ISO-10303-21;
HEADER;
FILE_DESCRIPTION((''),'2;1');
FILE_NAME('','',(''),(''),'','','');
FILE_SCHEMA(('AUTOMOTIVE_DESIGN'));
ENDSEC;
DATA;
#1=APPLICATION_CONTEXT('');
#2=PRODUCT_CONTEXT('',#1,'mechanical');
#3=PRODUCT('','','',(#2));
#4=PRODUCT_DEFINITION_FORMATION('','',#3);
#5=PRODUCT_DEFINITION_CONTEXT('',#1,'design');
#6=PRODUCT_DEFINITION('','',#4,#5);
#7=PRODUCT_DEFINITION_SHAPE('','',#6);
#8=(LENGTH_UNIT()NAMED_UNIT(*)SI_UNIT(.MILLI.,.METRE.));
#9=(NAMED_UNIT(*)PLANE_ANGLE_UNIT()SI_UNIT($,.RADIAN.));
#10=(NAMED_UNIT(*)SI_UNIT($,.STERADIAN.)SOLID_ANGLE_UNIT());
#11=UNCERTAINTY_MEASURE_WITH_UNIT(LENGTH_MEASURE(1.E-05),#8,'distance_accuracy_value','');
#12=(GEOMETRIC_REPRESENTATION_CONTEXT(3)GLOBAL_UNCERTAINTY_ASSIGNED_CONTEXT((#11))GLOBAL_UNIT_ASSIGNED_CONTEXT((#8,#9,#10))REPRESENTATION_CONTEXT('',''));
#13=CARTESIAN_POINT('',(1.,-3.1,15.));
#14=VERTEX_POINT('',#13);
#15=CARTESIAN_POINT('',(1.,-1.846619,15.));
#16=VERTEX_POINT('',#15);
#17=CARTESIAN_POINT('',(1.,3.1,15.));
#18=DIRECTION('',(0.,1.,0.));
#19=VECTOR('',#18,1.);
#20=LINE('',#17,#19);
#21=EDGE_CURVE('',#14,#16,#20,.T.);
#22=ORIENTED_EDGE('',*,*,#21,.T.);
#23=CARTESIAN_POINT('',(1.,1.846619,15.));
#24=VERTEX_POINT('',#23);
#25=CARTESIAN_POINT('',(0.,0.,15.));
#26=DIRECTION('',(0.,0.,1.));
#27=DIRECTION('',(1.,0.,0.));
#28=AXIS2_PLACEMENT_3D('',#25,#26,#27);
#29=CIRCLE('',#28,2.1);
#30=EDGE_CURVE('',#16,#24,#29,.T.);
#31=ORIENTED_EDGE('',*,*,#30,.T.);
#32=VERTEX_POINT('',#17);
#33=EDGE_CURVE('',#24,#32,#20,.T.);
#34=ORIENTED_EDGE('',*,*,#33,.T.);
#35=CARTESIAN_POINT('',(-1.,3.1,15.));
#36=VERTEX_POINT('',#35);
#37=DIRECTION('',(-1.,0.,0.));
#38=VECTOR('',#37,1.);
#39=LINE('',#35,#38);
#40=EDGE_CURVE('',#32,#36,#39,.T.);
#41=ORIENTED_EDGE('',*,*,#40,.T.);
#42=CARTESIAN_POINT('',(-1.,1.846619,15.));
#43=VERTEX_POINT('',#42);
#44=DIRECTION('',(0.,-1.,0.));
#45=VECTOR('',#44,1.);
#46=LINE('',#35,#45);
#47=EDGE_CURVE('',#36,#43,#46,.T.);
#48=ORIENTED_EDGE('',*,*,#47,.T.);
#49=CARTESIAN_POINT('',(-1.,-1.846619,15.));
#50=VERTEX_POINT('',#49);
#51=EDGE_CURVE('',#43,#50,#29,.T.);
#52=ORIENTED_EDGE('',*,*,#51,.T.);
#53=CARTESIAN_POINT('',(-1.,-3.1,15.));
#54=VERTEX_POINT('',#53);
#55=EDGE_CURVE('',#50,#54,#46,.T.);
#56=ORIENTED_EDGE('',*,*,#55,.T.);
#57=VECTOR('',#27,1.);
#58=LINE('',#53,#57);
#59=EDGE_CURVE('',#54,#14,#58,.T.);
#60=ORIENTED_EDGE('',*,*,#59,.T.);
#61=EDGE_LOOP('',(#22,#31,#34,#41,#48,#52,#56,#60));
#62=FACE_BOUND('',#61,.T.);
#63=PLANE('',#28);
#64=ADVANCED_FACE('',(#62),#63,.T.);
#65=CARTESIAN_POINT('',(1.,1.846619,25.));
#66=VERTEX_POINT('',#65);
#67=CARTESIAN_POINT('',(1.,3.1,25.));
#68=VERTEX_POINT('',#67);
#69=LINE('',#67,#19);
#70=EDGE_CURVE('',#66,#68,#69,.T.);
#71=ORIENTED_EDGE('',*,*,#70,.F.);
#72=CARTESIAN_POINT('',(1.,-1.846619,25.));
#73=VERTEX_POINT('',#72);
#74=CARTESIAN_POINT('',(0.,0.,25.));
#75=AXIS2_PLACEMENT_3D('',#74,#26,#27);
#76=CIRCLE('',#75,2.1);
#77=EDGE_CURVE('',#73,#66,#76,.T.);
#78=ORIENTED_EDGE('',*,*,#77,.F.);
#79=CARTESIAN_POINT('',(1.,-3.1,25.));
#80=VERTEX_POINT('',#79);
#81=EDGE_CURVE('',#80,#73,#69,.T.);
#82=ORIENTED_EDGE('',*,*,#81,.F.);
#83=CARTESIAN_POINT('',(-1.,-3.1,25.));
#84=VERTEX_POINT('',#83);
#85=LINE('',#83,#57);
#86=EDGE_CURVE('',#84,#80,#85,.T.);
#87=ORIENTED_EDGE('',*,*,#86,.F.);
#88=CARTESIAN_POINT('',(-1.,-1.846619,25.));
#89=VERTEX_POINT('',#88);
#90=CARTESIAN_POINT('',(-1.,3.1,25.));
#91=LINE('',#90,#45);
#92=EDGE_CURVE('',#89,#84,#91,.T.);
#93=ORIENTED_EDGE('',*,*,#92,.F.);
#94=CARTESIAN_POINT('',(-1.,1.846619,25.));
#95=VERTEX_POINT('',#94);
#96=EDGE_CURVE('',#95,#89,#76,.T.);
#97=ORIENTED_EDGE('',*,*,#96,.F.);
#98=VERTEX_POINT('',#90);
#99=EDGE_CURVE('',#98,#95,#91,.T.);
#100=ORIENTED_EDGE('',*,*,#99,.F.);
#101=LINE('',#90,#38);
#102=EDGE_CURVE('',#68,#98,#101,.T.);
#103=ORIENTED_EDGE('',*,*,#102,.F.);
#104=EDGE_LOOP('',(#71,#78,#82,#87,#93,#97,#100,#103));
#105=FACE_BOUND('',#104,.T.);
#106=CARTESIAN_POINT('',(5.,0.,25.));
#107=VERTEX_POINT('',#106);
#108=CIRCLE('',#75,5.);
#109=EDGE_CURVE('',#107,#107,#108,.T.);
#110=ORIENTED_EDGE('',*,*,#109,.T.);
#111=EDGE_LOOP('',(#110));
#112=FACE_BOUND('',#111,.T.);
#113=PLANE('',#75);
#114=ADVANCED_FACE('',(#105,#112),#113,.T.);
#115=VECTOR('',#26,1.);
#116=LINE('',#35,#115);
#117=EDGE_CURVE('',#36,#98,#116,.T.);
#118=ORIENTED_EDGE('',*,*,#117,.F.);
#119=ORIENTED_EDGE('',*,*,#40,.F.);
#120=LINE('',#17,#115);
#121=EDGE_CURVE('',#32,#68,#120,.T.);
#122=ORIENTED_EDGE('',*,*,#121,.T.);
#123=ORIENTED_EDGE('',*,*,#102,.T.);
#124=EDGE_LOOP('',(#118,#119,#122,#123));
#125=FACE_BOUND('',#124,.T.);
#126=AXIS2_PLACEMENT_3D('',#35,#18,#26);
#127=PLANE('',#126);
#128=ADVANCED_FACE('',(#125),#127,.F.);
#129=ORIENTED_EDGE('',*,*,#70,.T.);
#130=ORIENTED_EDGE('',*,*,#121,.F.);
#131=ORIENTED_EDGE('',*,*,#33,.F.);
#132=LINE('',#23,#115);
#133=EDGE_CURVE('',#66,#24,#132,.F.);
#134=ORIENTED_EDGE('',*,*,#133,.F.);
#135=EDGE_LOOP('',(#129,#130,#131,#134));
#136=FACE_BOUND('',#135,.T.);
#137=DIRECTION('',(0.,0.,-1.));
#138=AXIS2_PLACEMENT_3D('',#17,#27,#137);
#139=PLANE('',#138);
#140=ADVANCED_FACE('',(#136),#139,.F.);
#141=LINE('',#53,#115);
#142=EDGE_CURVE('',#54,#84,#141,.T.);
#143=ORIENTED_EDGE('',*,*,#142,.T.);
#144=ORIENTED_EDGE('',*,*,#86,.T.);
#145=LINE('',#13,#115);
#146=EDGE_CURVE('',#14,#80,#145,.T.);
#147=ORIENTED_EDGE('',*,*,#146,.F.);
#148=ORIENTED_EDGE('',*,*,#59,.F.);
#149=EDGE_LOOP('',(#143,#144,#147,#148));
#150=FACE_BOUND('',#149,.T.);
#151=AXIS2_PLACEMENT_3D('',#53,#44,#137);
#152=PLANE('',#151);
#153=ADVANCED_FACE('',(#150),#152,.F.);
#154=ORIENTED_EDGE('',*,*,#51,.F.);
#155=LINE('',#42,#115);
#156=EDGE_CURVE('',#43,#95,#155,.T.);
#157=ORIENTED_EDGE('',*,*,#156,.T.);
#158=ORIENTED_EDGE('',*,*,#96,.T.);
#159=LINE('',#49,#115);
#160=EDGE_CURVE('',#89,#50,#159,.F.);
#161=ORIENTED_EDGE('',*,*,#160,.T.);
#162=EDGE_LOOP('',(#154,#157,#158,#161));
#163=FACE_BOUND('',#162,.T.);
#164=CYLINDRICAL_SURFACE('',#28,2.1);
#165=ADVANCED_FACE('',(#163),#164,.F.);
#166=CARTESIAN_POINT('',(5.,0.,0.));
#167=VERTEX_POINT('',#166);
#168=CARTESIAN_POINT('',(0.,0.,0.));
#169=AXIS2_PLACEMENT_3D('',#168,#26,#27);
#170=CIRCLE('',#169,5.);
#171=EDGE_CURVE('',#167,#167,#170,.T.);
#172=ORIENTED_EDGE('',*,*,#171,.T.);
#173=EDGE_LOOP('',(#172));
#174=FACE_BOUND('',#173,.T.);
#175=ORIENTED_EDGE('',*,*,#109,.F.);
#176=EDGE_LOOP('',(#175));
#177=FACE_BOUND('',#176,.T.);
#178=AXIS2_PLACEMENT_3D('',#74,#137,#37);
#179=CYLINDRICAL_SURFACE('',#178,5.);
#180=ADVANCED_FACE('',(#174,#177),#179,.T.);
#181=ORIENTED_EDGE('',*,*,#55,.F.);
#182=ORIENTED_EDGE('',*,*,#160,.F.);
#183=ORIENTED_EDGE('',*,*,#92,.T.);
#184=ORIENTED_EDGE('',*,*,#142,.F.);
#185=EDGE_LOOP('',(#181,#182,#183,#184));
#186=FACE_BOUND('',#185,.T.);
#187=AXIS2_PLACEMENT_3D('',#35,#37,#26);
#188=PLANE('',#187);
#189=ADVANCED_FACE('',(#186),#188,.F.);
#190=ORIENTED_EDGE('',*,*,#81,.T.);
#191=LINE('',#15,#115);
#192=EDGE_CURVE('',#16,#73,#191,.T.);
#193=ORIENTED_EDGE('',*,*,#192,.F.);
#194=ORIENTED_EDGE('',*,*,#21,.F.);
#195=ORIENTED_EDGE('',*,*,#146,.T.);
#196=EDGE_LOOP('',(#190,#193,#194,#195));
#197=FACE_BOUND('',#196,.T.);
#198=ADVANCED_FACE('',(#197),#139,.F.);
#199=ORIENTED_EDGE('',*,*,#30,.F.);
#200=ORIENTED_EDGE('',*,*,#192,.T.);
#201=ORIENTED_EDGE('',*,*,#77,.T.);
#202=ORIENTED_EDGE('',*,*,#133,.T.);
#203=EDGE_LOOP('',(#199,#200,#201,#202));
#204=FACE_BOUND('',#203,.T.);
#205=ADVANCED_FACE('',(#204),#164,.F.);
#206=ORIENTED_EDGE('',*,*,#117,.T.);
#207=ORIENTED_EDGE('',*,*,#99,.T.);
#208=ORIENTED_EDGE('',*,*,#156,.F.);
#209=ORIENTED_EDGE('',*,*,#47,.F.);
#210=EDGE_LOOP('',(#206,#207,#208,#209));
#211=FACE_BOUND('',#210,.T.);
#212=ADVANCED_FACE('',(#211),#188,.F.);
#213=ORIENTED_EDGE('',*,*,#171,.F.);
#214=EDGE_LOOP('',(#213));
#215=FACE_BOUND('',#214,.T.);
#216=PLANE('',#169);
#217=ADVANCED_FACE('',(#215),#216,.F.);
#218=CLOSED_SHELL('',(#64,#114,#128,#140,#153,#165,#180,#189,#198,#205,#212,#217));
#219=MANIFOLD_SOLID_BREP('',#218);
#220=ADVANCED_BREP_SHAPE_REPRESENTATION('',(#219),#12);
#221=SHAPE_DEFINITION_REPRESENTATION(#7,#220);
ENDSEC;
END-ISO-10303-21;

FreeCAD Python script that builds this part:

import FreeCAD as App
import Part
import Sketcher

V = App.Vector
Q = App.Units.Quantity

doc = App.newDocument("Part")
params = doc.addObject("Spreadsheet::Sheet", "Params")
for row, (alias, value) in enumerate([
    ("sketch1_diameter", "10 mm"),
    ("pad1_length", "25 mm"),
    ("sketch2_diameter", "4.2 mm"),
    ("pocket1_length", "10 mm"),
    ("sketch3_width", "2 mm"),
    ("sketch3_height", "6.2 mm"),
    ("pocket2_length", "10 mm"),
], start=1):
    params.set(f"A{row}", alias)
    params.set(f"B{row}", "=" + value)
    params.setAlias(f"B{row}", alias)

body = doc.addObject("PartDesign::Body", "Body")

sketch1 = doc.addObject("Sketcher::SketchObject", "Sketch")
body.addObject(sketch1)
sketch1.AttachmentSupport = (doc.XY_Plane, [""])
sketch1.MapMode = "FlatFace"
sketch1.addGeometry(Part.Circle(V(0, 0, 0), V(0, 0, 1), 5), False)
sketch1.addConstraint(Sketcher.Constraint("Coincident", 0, 3, -1, 1))
sketch1.addConstraint(Sketcher.Constraint("Diameter", 0, Q("10 mm")))
sketch1.setExpression("Constraints[1]", "Params.sketch1_diameter")
pad1 = doc.addObject("PartDesign::Pad", "Pad")
body.addObject(pad1)
pad1.Profile = sketch1
pad1.setExpression("Length", "Params.pad1_length")

sketch2 = doc.addObject("Sketcher::SketchObject", "Sketch001")
body.addObject(sketch2)
sketch2.AttachmentSupport = (doc.XY_Plane, [""])
sketch2.MapMode = "FlatFace"
sketch2.AttachmentOffset = App.Placement(V(0, 0, 25), App.Rotation())
sketch2.addGeometry(Part.Circle(V(0, 0, 0), V(0, 0, 1), 2.1), False)
sketch2.addConstraint(Sketcher.Constraint("Coincident", 0, 3, -1, 1))
sketch2.addConstraint(Sketcher.Constraint("Diameter", 0, Q("4.2 mm")))
sketch2.setExpression("Constraints[1]", "Params.sketch2_diameter")
pocket1 = doc.addObject("PartDesign::Pocket", "Pocket")
body.addObject(pocket1)
pocket1.Profile = sketch2
pocket1.setExpression("Length", "Params.pocket1_length")

sketch3 = doc.addObject("Sketcher::SketchObject", "Sketch002")
body.addObject(sketch3)
sketch3.AttachmentSupport = (doc.XY_Plane, [""])
sketch3.MapMode = "FlatFace"
sketch3.AttachmentOffset = App.Placement(V(0, 0, 25), App.Rotation())
sketch3.addGeometry(Part.LineSegment(V(-1, 3.1, 0), V(-1, -3.1, 0)), False)
sketch3.addGeometry(Part.LineSegment(V(-1, -3.1, 0), V(1, -3.1, 0)), False)
sketch3.addGeometry(Part.LineSegment(V(1, -3.1, 0), V(1, 3.1, 0)), False)
sketch3.addGeometry(Part.LineSegment(V(1, 3.1, 0), V(-1, 3.1, 0)), False)
sketch3.addConstraint(Sketcher.Constraint("Coincident", 0, 2, 1, 1))
sketch3.addConstraint(Sketcher.Constraint("Coincident", 1, 2, 2, 1))
sketch3.addConstraint(Sketcher.Constraint("Coincident", 2, 2, 3, 1))
sketch3.addConstraint(Sketcher.Constraint("Coincident", 3, 2, 0, 1))
sketch3.addConstraint(Sketcher.Constraint("Vertical", 0))
sketch3.addConstraint(Sketcher.Constraint("Horizontal", 1))
sketch3.addConstraint(Sketcher.Constraint("Vertical", 2))
sketch3.addConstraint(Sketcher.Constraint("Horizontal", 3))
sketch3.addConstraint(Sketcher.Constraint("Symmetric", 0, 2, 2, 2, -1, 1))
sketch3.addConstraint(Sketcher.Constraint("DistanceX", 1, 1, 1, 2, Q("2 mm")))
sketch3.addConstraint(Sketcher.Constraint("DistanceY", 0, 2, 0, 1, Q("6.2 mm")))
sketch3.setExpression("Constraints[9]", "Params.sketch3_width")
sketch3.setExpression("Constraints[10]", "Params.sketch3_height")
pocket2 = doc.addObject("PartDesign::Pocket", "Pocket001")
body.addObject(pocket2)
pocket2.Profile = sketch3
pocket2.setExpression("Length", "Params.pocket2_length")

doc.recompute()
